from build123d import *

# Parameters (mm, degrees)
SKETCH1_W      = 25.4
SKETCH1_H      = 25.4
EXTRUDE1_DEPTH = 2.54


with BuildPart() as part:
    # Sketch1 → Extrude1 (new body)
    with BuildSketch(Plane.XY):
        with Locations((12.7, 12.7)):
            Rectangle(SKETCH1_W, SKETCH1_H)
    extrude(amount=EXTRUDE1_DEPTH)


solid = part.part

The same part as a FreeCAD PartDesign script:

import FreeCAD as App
import Part
import Sketcher
Q = App.Units.Quantity

doc = App.newDocument("Part")
body = doc.addObject("PartDesign::Body", "Body")

sketch1 = doc.addObject("Sketcher::SketchObject", "Sketch")
body.addObject(sketch1)
sketch1.AttachmentSupport = (doc.XY_Plane, [""])
sketch1.MapMode = "FlatFace"
sketch1.addGeometry([
    Part.LineSegment(App.Vector(0, 25, 0), App.Vector(0, 0, 0)),
    Part.LineSegment(App.Vector(0, 0, 0), App.Vector(25, 0, 0)),
    Part.LineSegment(App.Vector(25, 0, 0), App.Vector(25, 25, 0)),
    Part.LineSegment(App.Vector(25, 25, 0), App.Vector(0, 25, 0)),
], False)
sketch1.addConstraint([
    Sketcher.Constraint("Coincident", 0, 2, 1, 1),
    Sketcher.Constraint("Coincident", 1, 2, 2, 1),
    Sketcher.Constraint("Coincident", 2, 2, 3, 1),
    Sketcher.Constraint("Coincident", 3, 2, 0, 1),
    Sketcher.Constraint("Vertical", 0),
    Sketcher.Constraint("Horizontal", 1),
    Sketcher.Constraint("Vertical", 2),
    Sketcher.Constraint("Horizontal", 3),
    Sketcher.Constraint("Coincident", 0, 2, -1, 1),
    Sketcher.Constraint("Equal", 3, 0),
    Sketcher.Constraint("DistanceX", 1, 1, 1, 2, Q("1 in")),
])
pad1 = doc.addObject("PartDesign::Pad", "Pad")
body.addObject(pad1)
pad1.Profile = sketch1
pad1.Length = Q("0.1 in")

doc.recompute()
